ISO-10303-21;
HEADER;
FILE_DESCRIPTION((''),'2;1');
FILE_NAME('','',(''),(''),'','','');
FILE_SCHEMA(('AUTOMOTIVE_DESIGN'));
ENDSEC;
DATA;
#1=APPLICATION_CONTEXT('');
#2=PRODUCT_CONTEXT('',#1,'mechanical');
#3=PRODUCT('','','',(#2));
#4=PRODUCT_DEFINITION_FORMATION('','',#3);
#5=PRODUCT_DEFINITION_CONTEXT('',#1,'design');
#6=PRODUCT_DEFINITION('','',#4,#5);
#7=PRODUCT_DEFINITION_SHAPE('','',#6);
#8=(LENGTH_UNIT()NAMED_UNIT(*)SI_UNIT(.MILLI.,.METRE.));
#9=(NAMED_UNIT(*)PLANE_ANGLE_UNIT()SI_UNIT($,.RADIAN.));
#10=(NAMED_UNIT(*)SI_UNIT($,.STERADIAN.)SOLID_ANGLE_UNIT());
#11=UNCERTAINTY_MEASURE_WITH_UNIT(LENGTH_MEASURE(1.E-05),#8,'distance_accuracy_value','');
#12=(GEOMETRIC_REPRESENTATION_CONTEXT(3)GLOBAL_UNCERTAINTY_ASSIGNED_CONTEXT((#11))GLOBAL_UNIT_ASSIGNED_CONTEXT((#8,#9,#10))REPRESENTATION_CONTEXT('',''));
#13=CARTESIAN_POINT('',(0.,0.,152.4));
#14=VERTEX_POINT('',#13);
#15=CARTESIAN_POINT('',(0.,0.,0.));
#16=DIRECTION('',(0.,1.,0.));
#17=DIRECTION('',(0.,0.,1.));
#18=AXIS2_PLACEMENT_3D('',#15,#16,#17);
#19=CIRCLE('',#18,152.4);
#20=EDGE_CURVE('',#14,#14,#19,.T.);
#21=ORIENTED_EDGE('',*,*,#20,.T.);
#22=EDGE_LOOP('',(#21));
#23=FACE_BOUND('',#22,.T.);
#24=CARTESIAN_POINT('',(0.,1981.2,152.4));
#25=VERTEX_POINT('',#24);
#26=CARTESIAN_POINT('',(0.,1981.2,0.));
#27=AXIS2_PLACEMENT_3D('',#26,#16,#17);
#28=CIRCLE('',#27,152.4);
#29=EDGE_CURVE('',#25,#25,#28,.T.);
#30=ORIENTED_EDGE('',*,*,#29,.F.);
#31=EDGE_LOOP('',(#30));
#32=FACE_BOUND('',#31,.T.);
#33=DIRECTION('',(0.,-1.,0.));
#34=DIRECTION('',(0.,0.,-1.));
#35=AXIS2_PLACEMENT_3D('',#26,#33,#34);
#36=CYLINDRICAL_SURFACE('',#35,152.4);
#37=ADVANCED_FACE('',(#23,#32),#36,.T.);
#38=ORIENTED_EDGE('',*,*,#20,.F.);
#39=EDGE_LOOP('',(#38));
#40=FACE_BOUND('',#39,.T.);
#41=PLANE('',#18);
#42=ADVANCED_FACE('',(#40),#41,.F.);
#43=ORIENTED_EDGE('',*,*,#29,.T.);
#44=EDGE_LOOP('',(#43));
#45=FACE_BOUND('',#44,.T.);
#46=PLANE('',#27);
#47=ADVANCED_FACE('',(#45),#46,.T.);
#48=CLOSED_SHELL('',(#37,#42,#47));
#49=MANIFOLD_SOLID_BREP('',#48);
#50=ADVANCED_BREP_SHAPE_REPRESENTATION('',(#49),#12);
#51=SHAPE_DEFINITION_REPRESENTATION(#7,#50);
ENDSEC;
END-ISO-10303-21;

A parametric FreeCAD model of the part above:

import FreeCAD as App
import Part
import Sketcher

V = App.Vector
Q = App.Units.Quantity

doc = App.newDocument("Part")
body = doc.addObject("PartDesign::Body", "Body")

# Sketch on XZ plane
sketch1 = doc.addObject("Sketcher::SketchObject", "Sketch")
body.addObject(sketch1)
sketch1.AttachmentSupport = (doc.XZ_Plane, [""])
sketch1.MapMode = "FlatFace"
sketch1.addGeometry(Part.Circle(V(0, 0, 0), V(0, 0, 1), 152), False)
sketch1.addConstraint([
    Sketcher.Constraint("Coincident", 0, 3, -1, 1),
    Sketcher.Constraint("Diameter", 0, Q("12 in")),
])
pad1 = doc.addObject("PartDesign::Pad", "Pad")
body.addObject(pad1)
pad1.Profile = sketch1
pad1.Length = Q("78 in")
pad1.Reversed = True

doc.recompute()
